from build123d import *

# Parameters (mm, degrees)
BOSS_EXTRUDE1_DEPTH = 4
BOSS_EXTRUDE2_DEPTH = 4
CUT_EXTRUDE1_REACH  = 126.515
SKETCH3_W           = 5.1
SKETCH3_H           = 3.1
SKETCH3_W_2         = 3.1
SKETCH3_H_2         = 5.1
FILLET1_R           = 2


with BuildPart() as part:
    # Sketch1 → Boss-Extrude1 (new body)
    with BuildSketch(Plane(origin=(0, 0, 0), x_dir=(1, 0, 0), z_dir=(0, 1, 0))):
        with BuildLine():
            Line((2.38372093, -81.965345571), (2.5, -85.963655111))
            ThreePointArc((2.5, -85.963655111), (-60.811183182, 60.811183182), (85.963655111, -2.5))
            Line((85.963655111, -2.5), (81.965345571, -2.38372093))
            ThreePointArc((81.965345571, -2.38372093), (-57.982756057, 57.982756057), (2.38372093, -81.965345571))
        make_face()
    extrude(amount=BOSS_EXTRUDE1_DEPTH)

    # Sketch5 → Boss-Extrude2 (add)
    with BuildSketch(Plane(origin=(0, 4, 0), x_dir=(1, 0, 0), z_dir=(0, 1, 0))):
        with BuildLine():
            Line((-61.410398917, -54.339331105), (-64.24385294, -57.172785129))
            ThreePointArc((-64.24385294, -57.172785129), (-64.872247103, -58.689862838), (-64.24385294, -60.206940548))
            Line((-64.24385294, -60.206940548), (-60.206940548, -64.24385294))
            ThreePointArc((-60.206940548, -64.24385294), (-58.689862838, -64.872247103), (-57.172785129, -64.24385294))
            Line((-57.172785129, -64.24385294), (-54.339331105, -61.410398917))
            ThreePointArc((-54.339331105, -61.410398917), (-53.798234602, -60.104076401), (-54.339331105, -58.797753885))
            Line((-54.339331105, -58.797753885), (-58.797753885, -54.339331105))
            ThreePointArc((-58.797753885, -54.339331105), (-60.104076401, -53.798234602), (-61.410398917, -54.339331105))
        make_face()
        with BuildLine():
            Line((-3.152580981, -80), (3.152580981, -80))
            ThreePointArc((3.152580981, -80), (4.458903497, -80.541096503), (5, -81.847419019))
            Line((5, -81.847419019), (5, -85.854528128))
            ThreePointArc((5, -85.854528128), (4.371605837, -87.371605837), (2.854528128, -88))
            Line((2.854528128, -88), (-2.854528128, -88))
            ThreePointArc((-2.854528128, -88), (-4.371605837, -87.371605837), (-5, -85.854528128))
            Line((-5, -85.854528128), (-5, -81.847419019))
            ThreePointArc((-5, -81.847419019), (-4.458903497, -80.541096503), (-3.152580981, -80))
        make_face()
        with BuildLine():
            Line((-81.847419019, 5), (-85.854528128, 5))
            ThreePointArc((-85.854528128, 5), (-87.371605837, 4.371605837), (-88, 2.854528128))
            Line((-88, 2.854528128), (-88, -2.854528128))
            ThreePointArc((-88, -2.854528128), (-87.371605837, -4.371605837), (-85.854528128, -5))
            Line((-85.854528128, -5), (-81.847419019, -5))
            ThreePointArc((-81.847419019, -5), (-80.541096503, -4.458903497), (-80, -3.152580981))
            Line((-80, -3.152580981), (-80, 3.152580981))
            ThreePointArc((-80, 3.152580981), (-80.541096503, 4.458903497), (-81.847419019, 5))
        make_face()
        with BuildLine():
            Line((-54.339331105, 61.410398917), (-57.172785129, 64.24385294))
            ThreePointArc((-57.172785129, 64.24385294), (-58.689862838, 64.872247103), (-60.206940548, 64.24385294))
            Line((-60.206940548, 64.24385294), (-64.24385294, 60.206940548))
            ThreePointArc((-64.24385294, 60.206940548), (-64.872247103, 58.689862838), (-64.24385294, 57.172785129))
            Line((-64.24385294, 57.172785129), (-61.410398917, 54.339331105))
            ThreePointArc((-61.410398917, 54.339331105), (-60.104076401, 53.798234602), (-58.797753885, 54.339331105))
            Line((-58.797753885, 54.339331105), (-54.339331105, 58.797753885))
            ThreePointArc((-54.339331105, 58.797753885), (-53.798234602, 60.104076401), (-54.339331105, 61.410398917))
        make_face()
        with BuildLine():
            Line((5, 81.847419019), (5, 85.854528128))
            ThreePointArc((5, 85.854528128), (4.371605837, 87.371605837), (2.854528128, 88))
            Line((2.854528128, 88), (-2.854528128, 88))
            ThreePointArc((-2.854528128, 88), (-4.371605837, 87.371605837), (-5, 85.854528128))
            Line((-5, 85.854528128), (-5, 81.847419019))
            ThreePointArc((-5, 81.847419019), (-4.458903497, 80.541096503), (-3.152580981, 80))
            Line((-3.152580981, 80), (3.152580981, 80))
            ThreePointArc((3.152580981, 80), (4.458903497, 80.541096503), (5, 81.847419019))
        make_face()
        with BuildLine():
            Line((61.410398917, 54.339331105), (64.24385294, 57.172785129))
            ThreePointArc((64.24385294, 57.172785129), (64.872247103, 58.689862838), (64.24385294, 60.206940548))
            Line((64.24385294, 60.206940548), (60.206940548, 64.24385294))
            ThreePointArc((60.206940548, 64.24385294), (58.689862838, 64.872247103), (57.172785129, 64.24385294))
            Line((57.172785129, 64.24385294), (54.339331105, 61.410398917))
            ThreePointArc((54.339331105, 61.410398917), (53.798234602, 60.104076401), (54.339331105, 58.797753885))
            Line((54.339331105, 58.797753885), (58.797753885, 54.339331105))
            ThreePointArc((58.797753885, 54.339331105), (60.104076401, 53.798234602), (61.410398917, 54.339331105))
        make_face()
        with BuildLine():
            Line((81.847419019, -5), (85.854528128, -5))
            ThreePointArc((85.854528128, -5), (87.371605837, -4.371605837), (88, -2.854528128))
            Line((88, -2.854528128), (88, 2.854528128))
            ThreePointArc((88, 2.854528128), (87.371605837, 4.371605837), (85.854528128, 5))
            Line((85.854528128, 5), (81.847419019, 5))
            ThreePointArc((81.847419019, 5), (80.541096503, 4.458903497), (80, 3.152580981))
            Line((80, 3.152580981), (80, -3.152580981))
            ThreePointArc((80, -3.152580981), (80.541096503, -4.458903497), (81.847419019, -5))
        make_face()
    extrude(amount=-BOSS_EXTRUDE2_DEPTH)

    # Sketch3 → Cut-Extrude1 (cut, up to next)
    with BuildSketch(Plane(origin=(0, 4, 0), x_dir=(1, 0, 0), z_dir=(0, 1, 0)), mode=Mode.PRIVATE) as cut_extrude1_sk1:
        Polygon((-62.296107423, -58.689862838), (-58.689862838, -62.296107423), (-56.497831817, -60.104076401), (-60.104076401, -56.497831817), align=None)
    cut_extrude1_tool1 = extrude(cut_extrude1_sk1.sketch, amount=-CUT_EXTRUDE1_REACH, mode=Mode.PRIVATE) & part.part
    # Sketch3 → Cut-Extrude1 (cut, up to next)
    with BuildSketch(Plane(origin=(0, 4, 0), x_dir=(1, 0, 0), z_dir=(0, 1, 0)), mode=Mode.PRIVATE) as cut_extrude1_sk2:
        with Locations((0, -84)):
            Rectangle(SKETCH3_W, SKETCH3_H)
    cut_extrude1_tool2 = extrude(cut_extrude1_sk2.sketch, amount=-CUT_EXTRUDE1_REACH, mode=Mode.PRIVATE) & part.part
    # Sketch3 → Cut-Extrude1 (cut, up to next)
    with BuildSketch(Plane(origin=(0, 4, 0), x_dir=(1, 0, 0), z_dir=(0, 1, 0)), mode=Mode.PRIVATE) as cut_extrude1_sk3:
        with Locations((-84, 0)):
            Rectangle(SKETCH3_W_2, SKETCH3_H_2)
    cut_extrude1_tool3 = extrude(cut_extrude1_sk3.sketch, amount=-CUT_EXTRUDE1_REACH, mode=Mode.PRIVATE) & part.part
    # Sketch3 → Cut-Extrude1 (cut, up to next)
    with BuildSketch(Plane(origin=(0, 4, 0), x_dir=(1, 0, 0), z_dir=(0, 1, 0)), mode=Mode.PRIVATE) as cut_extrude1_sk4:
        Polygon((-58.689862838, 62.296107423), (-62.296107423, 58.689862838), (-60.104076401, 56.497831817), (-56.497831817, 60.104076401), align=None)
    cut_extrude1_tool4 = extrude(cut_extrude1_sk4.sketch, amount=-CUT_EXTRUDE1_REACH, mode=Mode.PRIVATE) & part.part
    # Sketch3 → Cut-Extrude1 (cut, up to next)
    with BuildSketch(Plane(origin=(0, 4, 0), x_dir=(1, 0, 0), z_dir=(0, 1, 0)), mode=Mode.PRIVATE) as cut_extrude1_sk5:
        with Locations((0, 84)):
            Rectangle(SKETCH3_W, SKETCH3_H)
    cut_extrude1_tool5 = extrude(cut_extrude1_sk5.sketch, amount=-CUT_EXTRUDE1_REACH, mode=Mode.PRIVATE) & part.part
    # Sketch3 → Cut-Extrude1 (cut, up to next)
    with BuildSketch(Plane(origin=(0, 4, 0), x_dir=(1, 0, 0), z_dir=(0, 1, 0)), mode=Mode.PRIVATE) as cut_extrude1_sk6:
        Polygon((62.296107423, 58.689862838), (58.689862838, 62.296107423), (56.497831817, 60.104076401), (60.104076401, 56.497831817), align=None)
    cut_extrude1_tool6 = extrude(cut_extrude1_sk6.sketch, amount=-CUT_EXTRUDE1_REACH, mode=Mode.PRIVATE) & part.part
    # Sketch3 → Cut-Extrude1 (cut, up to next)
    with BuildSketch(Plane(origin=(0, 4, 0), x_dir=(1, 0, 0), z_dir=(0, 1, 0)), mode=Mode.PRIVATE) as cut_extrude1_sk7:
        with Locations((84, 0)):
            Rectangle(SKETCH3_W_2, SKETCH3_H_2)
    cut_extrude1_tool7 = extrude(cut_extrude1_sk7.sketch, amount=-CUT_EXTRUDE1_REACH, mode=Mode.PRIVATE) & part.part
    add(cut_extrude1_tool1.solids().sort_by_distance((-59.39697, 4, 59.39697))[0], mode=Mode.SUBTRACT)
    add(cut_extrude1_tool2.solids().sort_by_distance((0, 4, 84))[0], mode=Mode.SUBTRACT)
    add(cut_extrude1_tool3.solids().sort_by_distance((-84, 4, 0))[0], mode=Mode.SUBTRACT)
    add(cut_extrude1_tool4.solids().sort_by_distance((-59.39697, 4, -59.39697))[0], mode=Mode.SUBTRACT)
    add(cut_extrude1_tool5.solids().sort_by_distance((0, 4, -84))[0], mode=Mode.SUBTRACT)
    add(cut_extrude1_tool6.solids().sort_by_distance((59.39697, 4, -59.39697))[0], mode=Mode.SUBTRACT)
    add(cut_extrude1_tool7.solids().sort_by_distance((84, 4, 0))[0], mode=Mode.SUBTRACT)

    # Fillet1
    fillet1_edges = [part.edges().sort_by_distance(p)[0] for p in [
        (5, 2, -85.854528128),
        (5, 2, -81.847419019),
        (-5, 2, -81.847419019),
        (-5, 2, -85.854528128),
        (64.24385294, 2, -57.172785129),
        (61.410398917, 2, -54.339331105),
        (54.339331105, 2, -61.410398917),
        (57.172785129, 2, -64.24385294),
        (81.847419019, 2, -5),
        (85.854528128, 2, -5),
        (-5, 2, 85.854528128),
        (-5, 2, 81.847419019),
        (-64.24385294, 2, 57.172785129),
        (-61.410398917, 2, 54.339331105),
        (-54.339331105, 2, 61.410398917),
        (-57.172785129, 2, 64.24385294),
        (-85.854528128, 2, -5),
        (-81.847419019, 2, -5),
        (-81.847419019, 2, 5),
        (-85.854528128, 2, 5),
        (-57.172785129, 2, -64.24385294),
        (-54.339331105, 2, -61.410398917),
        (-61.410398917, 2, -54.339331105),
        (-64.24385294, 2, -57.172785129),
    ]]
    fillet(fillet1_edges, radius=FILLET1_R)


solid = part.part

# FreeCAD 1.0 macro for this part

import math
import FreeCAD as App
import Part
import Sketcher

V = App.Vector
Q = App.Units.Quantity


def edges_at(feature, points):
    """Names of the edges that pass closest to the given points."""
    edges = feature.Shape.Edges
    near = lambda p: min(range(len(edges)), key=lambda i: edges[i].distToShape(Part.Vertex(*p))[0])
    return sorted({f"Edge{near(p) + 1}" for p in points})


def add_polygon(sketch, points):
    """Adds a closed chain of lines whose ends are joined by coincident constraints."""
    first, n = sketch.GeometryCount, len(points)
    for a, b in zip(points, points[1:] + points[:1]):
        sketch.addGeometry(Part.LineSegment(App.Vector(*a, 0), App.Vector(*b, 0)), False)
    for i in range(n):
        sketch.addConstraint(Sketcher.Constraint("Coincident", first + i, 2, first + (i + 1) % n, 1))

doc = App.newDocument("Part")
params = doc.addObject("Spreadsheet::Sheet", "Params")
for row, (alias, value) in enumerate([
    ("sketch1_radius", "82 mm"),
    ("sketch1_radius2", "86 mm"),
    ("pad1_length", "4 mm"),
    ("pad2_length", "4 mm"),
    ("sketch3_length", "5.1 mm"),
    ("sketch3_length2", "3.1 mm"),
    ("sketch4_width", "5.1 mm"),
    ("sketch4_height", "3.1 mm"),
    ("sketch5_width", "3.1 mm"),
    ("sketch5_height", "5.1 mm"),
    ("sketch6_length", "5.1 mm"),
    ("sketch6_length2", "3.1 mm"),
    ("sketch7_width", "5.1 mm"),
    ("sketch7_height", "3.1 mm"),
    ("sketch8_length", "5.1 mm"),
    ("sketch8_length2", "3.1 mm"),
    ("sketch9_width", "3.1 mm"),
    ("sketch9_height", "5.1 mm"),
    ("fillet_radius", "2 mm"),
], start=1):
    params.set(f"A{row}", alias)
    params.set(f"B{row}", "=" + value)
    params.setAlias(f"B{row}", alias)

body = doc.addObject("PartDesign::Body", "Body")

# Sketch on XZ plane
sketch1 = doc.addObject("Sketcher::SketchObject", "Sketch")
body.addObject(sketch1)
sketch1.AttachmentSupport = (doc.XZ_Plane, [""])
sketch1.MapMode = "FlatFace"
sketch1.addGeometry(Part.LineSegment(V(2.5, 86, 0), V(2.4, 82, 0)), False)
sketch1.addGeometry(Part.ArcOfCircle(Part.Circle(V(0, 0, 0), V(0, 0, 1), 82), math.radians(88), math.radians(362)), False)
sketch1.addGeometry(Part.LineSegment(V(82, 2.4, 0), V(86, 2.5, 0)), False)
sketch1.addGeometry(Part.ArcOfCircle(Part.Circle(V(0, 0, 0), V(0, 0, 1), 86), math.radians(88), math.radians(362)), False)
sketch1.addConstraint(Sketcher.Constraint("Coincident", 0, 2, 1, 1))
sketch1.addConstraint(Sketcher.Constraint("Coincident", 1, 2, 2, 1))
sketch1.addConstraint(Sketcher.Constraint("Coincident", 2, 2, 3, 2))
sketch1.addConstraint(Sketcher.Constraint("Coincident", 3, 1, 0, 1))
sketch1.addConstraint(Sketcher.Constraint("Coincident", 1, 3, -1, 1))
sketch1.addConstraint(Sketcher.Constraint("Coincident", 3, 3, -1, 1))
sketch1.addConstraint(Sketcher.Constraint("Radius", 1, Q("82 mm")))
sketch1.addConstraint(Sketcher.Constraint("Radius", 3, Q("86 mm")))
sketch1.addConstraint(Sketcher.Constraint("DistanceY", -1, 1, 2, 2, Q("2.5 mm")))
sketch1.addConstraint(Sketcher.Constraint("DistanceX", -1, 1, 3, 1, Q("2.5 mm")))
sketch1.addConstraint(Sketcher.Constraint("DistanceX", -1, 1, 0, 2, Q("2.383721 mm")))
sketch1.addConstraint(Sketcher.Constraint("DistanceY", -1, 1, 1, 2, Q("2.383721 mm")))
sketch1.setExpression("Constraints[6]", "Params.sketch1_radius")
sketch1.setExpression("Constraints[7]", "Params.sketch1_radius2")
pad1 = doc.addObject("PartDesign::Pad", "Pad")
body.addObject(pad1)
pad1.Profile = sketch1
pad1.setExpression("Length", "Params.pad1_length")
pad1.Reversed = True

# Sketch on XZ plane
sketch2 = doc.addObject("Sketcher::SketchObject", "Sketch001")
body.addObject(sketch2)
sketch2.AttachmentSupport = (doc.XZ_Plane, [""])
sketch2.MapMode = "FlatFace"
sketch2.AttachmentOffset = App.Placement(V(0, 0, -4), App.Rotation())
sketch2.addGeometry(Part.LineSegment(V(-61.4, 54.3, 0), V(-64.2, 57.2, 0)), False)
sketch2.addGeometry(Part.ArcOfCircle(Part.Circle(V(-62.7, 58.7, 0), V(0, 0, 1), 2.1), math.radians(135), math.radians(225)), False)
sketch2.addGeometry(Part.LineSegment(V(-64.2, 60.2, 0), V(-60.2, 64.2, 0)), False)
sketch2.addGeometry(Part.ArcOfCircle(Part.Circle(V(-58.7, 62.7, 0), V(0, 0, 1), 2.1), math.radians(45), math.radians(135)), False)
sketch2.addGeometry(Part.LineSegment(V(-57.2, 64.2, 0), V(-54.3, 61.4, 0)), False)
sketch2.addGeometry(Part.ArcOfCircle(Part.Circle(V(-55.6, 60.1, 0), V(0, 0, 1), 1.8), math.radians(-45), math.radians(45)), False)
sketch2.addGeometry(Part.LineSegment(V(-54.3, 58.8, 0), V(-58.8, 54.3, 0)), False)
sketch2.addGeometry(Part.ArcOfCircle(Part.Circle(V(-60.1, 55.6, 0), V(0, 0, 1), 1.8), math.radians(-135), math.radians(-45)), False)
sketch2.addGeometry(Part.LineSegment(V(3.2, 80, 0), V(-3.2, 80, 0)), False)
sketch2.addGeometry(Part.ArcOfCircle(Part.Circle(V(-3.2, 81.8, 0), V(0, 0, 1), 1.8), math.radians(180), math.radians(270)), False)
sketch2.addGeometry(Part.LineSegment(V(-5, 81.8, 0), V(-5, 85.9, 0)), False)
sketch2.addGeometry(Part.ArcOfCircle(Part.Circle(V(-2.9, 85.9, 0), V(0, 0, 1), 2.1), math.radians(90), math.radians(180)), False)
sketch2.addGeometry(Part.LineSegment(V(-2.9, 88, 0), V(2.9, 88, 0)), False)
sketch2.addGeometry(Part.ArcOfCircle(Part.Circle(V(2.9, 85.9, 0), V(0, 0, 1), 2.1), math.radians(0), math.radians(90)), False)
sketch2.addGeometry(Part.LineSegment(V(5, 85.9, 0), V(5, 81.8, 0)), False)
sketch2.addGeometry(Part.ArcOfCircle(Part.Circle(V(3.2, 81.8, 0), V(0, 0, 1), 1.8), math.radians(-90), math.radians(0)), False)
sketch2.addGeometry(Part.LineSegment(V(-81.8, -5, 0), V(-85.9, -5, 0)), False)
sketch2.addGeometry(Part.ArcOfCircle(Part.Circle(V(-85.9, -2.9, 0), V(0, 0, 1), 2.1), math.radians(-180), math.radians(-90)), False)
sketch2.addGeometry(Part.LineSegment(V(-88, -2.9, 0), V(-88, 2.9, 0)), False)
sketch2.addGeometry(Part.ArcOfCircle(Part.Circle(V(-85.9, 2.9, 0), V(0, 0, 1), 2.1), math.radians(90), math.radians(180)), False)
sketch2.addGeometry(Part.LineSegment(V(-85.9, 5, 0), V(-81.8, 5, 0)), False)
sketch2.addGeometry(Part.ArcOfCircle(Part.Circle(V(-81.8, 3.2, 0), V(0, 0, 1), 1.8), math.radians(0), math.radians(90)), False)
sketch2.addGeometry(Part.LineSegment(V(-80, 3.2, 0), V(-80, -3.2, 0)), False)
sketch2.addGeometry(Part.ArcOfCircle(Part.Circle(V(-81.8, -3.2, 0), V(0, 0, 1), 1.8), math.radians(-90), math.radians(0)), False)
sketch2.addGeometry(Part.LineSegment(V(-54.3, -61.4, 0), V(-57.2, -64.2, 0)), False)
sketch2.addGeometry(Part.ArcOfCircle(Part.Circle(V(-58.7, -62.7, 0), V(0, 0, 1), 2.1), math.radians(-135), math.radians(-45)), False)
sketch2.addGeometry(Part.LineSegment(V(-60.2, -64.2, 0), V(-64.2, -60.2, 0)), False)
sketch2.addGeometry(Part.ArcOfCircle(Part.Circle(V(-62.7, -58.7, 0), V(0, 0, 1), 2.1), math.radians(135), math.radians(225)), False)
sketch2.addGeometry(Part.LineSegment(V(-64.2, -57.2, 0), V(-61.4, -54.3, 0)), False)
sketch2.addGeometry(Part.ArcOfCircle(Part.Circle(V(-60.1, -55.6, 0), V(0, 0, 1), 1.8), math.radians(45), math.radians(135)), False)
sketch2.addGeometry(Part.LineSegment(V(-58.8, -54.3, 0), V(-54.3, -58.8, 0)), False)
sketch2.addGeometry(Part.ArcOfCircle(Part.Circle(V(-55.6, -60.1, 0), V(0, 0, 1), 1.8), math.radians(-45), math.radians(45)), False)
sketch2.addGeometry(Part.LineSegment(V(5, -81.8, 0), V(5, -85.9, 0)), False)
sketch2.addGeometry(Part.ArcOfCircle(Part.Circle(V(2.9, -85.9, 0), V(0, 0, 1), 2.1), math.radians(-90), math.radians(0)), False)
sketch2.addGeometry(Part.LineSegment(V(2.9, -88, 0), V(-2.9, -88, 0)), False)
sketch2.addGeometry(Part.ArcOfCircle(Part.Circle(V(-2.9, -85.9, 0), V(0, 0, 1), 2.1), math.radians(-180), math.radians(-90)), False)
sketch2.addGeometry(Part.LineSegment(V(-5, -85.9, 0), V(-5, -81.8, 0)), False)
sketch2.addGeometry(Part.ArcOfCircle(Part.Circle(V(-3.2, -81.8, 0), V(0, 0, 1), 1.8), math.radians(90), math.radians(180)), False)
sketch2.addGeometry(Part.LineSegment(V(-3.2, -80, 0), V(3.2, -80, 0)), False)
sketch2.addGeometry(Part.ArcOfCircle(Part.Circle(V(3.2, -81.8, 0), V(0, 0, 1), 1.8), math.radians(0), math.radians(90)), False)
sketch2.addGeometry(Part.LineSegment(V(61.4, -54.3, 0), V(64.2, -57.2, 0)), False)
sketch2.addGeometry(Part.ArcOfCircle(Part.Circle(V(62.7, -58.7, 0), V(0, 0, 1), 2.1), math.radians(-45), math.radians(45)), False)
sketch2.addGeometry(Part.LineSegment(V(64.2, -60.2, 0), V(60.2, -64.2, 0)), False)
sketch2.addGeometry(Part.ArcOfCircle(Part.Circle(V(58.7, -62.7, 0), V(0, 0, 1), 2.1), math.radians(-135), math.radians(-45)), False)
sketch2.addGeometry(Part.LineSegment(V(57.2, -64.2, 0), V(54.3, -61.4, 0)), False)
sketch2.addGeometry(Part.ArcOfCircle(Part.Circle(V(55.6, -60.1, 0), V(0, 0, 1), 1.8), math.radians(135), math.radians(225)), False)
sketch2.addGeometry(Part.LineSegment(V(54.3, -58.8, 0), V(58.8, -54.3, 0)), False)
sketch2.addGeometry(Part.ArcOfCircle(Part.Circle(V(60.1, -55.6, 0), V(0, 0, 1), 1.8), math.radians(45), math.radians(135)), False)
sketch2.addGeometry(Part.LineSegment(V(81.8, 5, 0), V(85.9, 5, 0)), False)
sketch2.addGeometry(Part.ArcOfCircle(Part.Circle(V(85.9, 2.9, 0), V(0, 0, 1), 2.1), math.radians(0), math.radians(90)), False)
sketch2.addGeometry(Part.LineSegment(V(88, 2.9, 0), V(88, -2.9, 0)), False)
sketch2.addGeometry(Part.ArcOfCircle(Part.Circle(V(85.9, -2.9, 0), V(0, 0, 1), 2.1), math.radians(-90), math.radians(0)), False)
sketch2.addGeometry(Part.LineSegment(V(85.9, -5, 0), V(81.8, -5, 0)), False)
sketch2.addGeometry(Part.ArcOfCircle(Part.Circle(V(81.8, -3.2, 0), V(0, 0, 1), 1.8), math.radians(180), math.radians(270)), False)
sketch2.addGeometry(Part.LineSegment(V(80, -3.2, 0), V(80, 3.2, 0)), False)
sketch2.addGeometry(Part.ArcOfCircle(Part.Circle(V(81.8, 3.2, 0), V(0, 0, 1), 1.8), math.radians(90), math.radians(180)), False)
sketch2.addConstraint(Sketcher.Constraint("Tangent", 0, 2, 1, 2))
sketch2.addConstraint(Sketcher.Constraint("Tangent", 1, 1, 2, 1))
sketch2.addConstraint(Sketcher.Constraint("Tangent", 2, 2, 3, 2))
sketch2.addConstraint(Sketcher.Constraint("Tangent", 3, 1, 4, 1))
sketch2.addConstraint(Sketcher.Constraint("Tangent", 4, 2, 5, 2))
sketch2.addConstraint(Sketcher.Constraint("Tangent", 5, 1, 6, 1))
sketch2.addConstraint(Sketcher.Constraint("Tangent", 6, 2, 7, 2))
sketch2.addConstraint(Sketcher.Constraint("Tangent", 7, 1, 0, 1))
sketch2.addConstraint(Sketcher.Constraint("Tangent", 8, 2, 9, 2))
sketch2.addConstraint(Sketcher.Constraint("Tangent", 9, 1, 10, 1))
sketch2.addConstraint(Sketcher.Constraint("Tangent", 10, 2, 11, 2))
sketch2.addConstraint(Sketcher.Constraint("Tangent", 11, 1, 12, 1))
sketch2.addConstraint(Sketcher.Constraint("Tangent", 12, 2, 13, 2))
sketch2.addConstraint(Sketcher.Constraint("Tangent", 13, 1, 14, 1))
sketch2.addConstraint(Sketcher.Constraint("Tangent", 14, 2, 15, 2))
sketch2.addConstraint(Sketcher.Constraint("Tangent", 15, 1, 8, 1))
sketch2.addConstraint(Sketcher.Constraint("Tangent", 16, 2, 17, 2))
sketch2.addConstraint(Sketcher.Constraint("Tangent", 17, 1, 18, 1))
sketch2.addConstraint(Sketcher.Constraint("Tangent", 18, 2, 19, 2))
sketch2.addConstraint(Sketcher.Constraint("Tangent", 19, 1, 20, 1))
sketch2.addConstraint(Sketcher.Constraint("Tangent", 20, 2, 21, 2))
sketch2.addConstraint(Sketcher.Constraint("Tangent", 21, 1, 22, 1))
sketch2.addConstraint(Sketcher.Constraint("Tangent", 22, 2, 23, 2))
sketch2.addConstraint(Sketcher.Constraint("Tangent", 23, 1, 16, 1))
sketch2.addConstraint(Sketcher.Constraint("Tangent", 24, 2, 25, 2))
sketch2.addConstraint(Sketcher.Constraint("Tangent", 25, 1, 26, 1))
sketch2.addConstraint(Sketcher.Constraint("Tangent", 26, 2, 27, 2))
sketch2.addConstraint(Sketcher.Constraint("Tangent", 27, 1, 28, 1))
sketch2.addConstraint(Sketcher.Constraint("Tangent", 28, 2, 29, 2))
sketch2.addConstraint(Sketcher.Constraint("Tangent", 29, 1, 30, 1))
sketch2.addConstraint(Sketcher.Constraint("Tangent", 30, 2, 31, 2))
sketch2.addConstraint(Sketcher.Constraint("Tangent", 31, 1, 24, 1))
sketch2.addConstraint(Sketcher.Constraint("Tangent", 32, 2, 33, 2))
sketch2.addConstraint(Sketcher.Constraint("Tangent", 33, 1, 34, 1))
sketch2.addConstraint(Sketcher.Constraint("Tangent", 34, 2, 35, 2))
sketch2.addConstraint(Sketcher.Constraint("Tangent", 35, 1, 36, 1))
sketch2.addConstraint(Sketcher.Constraint("Tangent", 36, 2, 37, 2))
sketch2.addConstraint(Sketcher.Constraint("Tangent", 37, 1, 38, 1))
sketch2.addConstraint(Sketcher.Constraint("Tangent", 38, 2, 39, 2))
sketch2.addConstraint(Sketcher.Constraint("Tangent", 39, 1, 32, 1))
sketch2.addConstraint(Sketcher.Constraint("Tangent", 40, 2, 41, 2))
sketch2.addConstraint(Sketcher.Constraint("Tangent", 41, 1, 42, 1))
sketch2.addConstraint(Sketcher.Constraint("Tangent", 42, 2, 43, 2))
sketch2.addConstraint(Sketcher.Constraint("Tangent", 43, 1, 44, 1))
sketch2.addConstraint(Sketcher.Constraint("Tangent", 44, 2, 45, 2))
sketch2.addConstraint(Sketcher.Constraint("Tangent", 45, 1, 46, 1))
sketch2.addConstraint(Sketcher.Constraint("Tangent", 46, 2, 47, 2))
sketch2.addConstraint(Sketcher.Constraint("Tangent", 47, 1, 40, 1))
sketch2.addConstraint(Sketcher.Constraint("Tangent", 48, 2, 49, 2))
sketch2.addConstraint(Sketcher.Constraint("Tangent", 49, 1, 50, 1))
sketch2.addConstraint(Sketcher.Constraint("Tangent", 50, 2, 51, 2))
sketch2.addConstraint(Sketcher.Constraint("Tangent", 51, 1, 52, 1))
sketch2.addConstraint(Sketcher.Constraint("Tangent", 52, 2, 53, 2))
sketch2.addConstraint(Sketcher.Constraint("Tangent", 53, 1, 54, 1))
sketch2.addConstraint(Sketcher.Constraint("Tangent", 54, 2, 55, 2))
sketch2.addConstraint(Sketcher.Constraint("Tangent", 55, 1, 48, 1))
sketch2.addConstraint(Sketcher.Constraint("Horizontal", 8))
sketch2.addConstraint(Sketcher.Constraint("Vertical", 10))
sketch2.addConstraint(Sketcher.Constraint("Horizontal", 12))
sketch2.addConstraint(Sketcher.Constraint("Vertical", 14))
sketch2.addConstraint(Sketcher.Constraint("Horizontal", 16))
sketch2.addConstraint(Sketcher.Constraint("Vertical", 18))
sketch2.addConstraint(Sketcher.Constraint("Horizontal", 20))
sketch2.addConstraint(Sketcher.Constraint("Vertical", 22))
sketch2.addConstraint(Sketcher.Constraint("Vertical", 32))
sketch2.addConstraint(Sketcher.Constraint("Horizontal", 34))
sketch2.addConstraint(Sketcher.Constraint("Vertical", 36))
sketch2.addConstraint(Sketcher.Constraint("Horizontal", 38))
sketch2.addConstraint(Sketcher.Constraint("Horizontal", 48))
sketch2.addConstraint(Sketcher.Constraint("Vertical", 50))
sketch2.addConstraint(Sketcher.Constraint("Horizontal", 52))
sketch2.addConstraint(Sketcher.Constraint("Vertical", 54))
sketch2.addConstraint(Sketcher.Constraint("Equal", 1, 3))
sketch2.addConstraint(Sketcher.Constraint("Equal", 5, 7))
sketch2.addConstraint(Sketcher.Constraint("Equal", 7, 9))
sketch2.addConstraint(Sketcher.Constraint("Equal", 3, 11))
sketch2.addConstraint(Sketcher.Constraint("Equal", 11, 13))
sketch2.addConstraint(Sketcher.Constraint("Equal", 9, 15))
sketch2.addConstraint(Sketcher.Constraint("Equal", 13, 17))
sketch2.addConstraint(Sketcher.Constraint("Equal", 17, 19))
sketch2.addConstraint(Sketcher.Constraint("Equal", 15, 21))
sketch2.addConstraint(Sketcher.Constraint("Equal", 21, 23))
sketch2.addConstraint(Sketcher.Constraint("Equal", 19, 25))
sketch2.addConstraint(Sketcher.Constraint("Equal", 25, 27))
sketch2.addConstraint(Sketcher.Constraint("Equal", 23, 29))
sketch2.addConstraint(Sketcher.Constraint("Equal", 29, 31))
sketch2.addConstraint(Sketcher.Constraint("Equal", 27, 33))
sketch2.addConstraint(Sketcher.Constraint("Equal", 33, 35))
sketch2.addConstraint(Sketcher.Constraint("Equal", 31, 37))
sketch2.addConstraint(Sketcher.Constraint("Equal", 37, 39))
sketch2.addConstraint(Sketcher.Constraint("Equal", 35, 41))
sketch2.addConstraint(Sketcher.Constraint("Equal", 41, 43))
sketch2.addConstraint(Sketcher.Constraint("Equal", 39, 45))
sketch2.addConstraint(Sketcher.Constraint("Equal", 45, 47))
sketch2.addConstraint(Sketcher.Constraint("Equal", 43, 49))
sketch2.addConstraint(Sketcher.Constraint("Equal", 49, 51))
sketch2.addConstraint(Sketcher.Constraint("Equal", 47, 53))
sketch2.addConstraint(Sketcher.Constraint("Equal", 53, 55))
sketch2.addConstraint(Sketcher.Constraint("Symmetric", 11, 3, 33, 3, -1, 1))
sketch2.addConstraint(Sketcher.Constraint("Symmetric", 15, 3, 37, 3, -1, 1))
sketch2.addConstraint(Sketcher.Constraint("Symmetric", 1, 3, 41, 3, -1, 1))
sketch2.addConstraint(Sketcher.Constraint("Symmetric", 3, 3, 43, 3, -1, 1))
sketch2.addConstraint(Sketcher.Constraint("Symmetric", 5, 3, 45, 3, -1, 1))
sketch2.addConstraint(Sketcher.Constraint("Symmetric", 7, 3, 47, 3, -1, 1))
sketch2.addConstraint(Sketcher.Constraint("Symmetric", 17, 3, 49, 3, -1, 1))
sketch2.addConstraint(Sketcher.Constraint("Symmetric", 21, 3, 53, 3, -1, 1))
sketch2.addConstraint(Sketcher.Constraint("Symmetric", 27, 3, 41, 3, -2))
sketch2.addConstraint(Sketcher.Constraint("Symmetric", 25, 3, 43, 3, -2))
sketch2.addConstraint(Sketcher.Constraint("Symmetric", 31, 3, 45, 3, -2))
sketch2.addConstraint(Sketcher.Constraint("Symmetric", 29, 3, 47, 3, -2))
sketch2.addConstraint(Sketcher.Constraint("Perpendicular", 0, 2))
sketch2.addConstraint(Sketcher.Constraint("Perpendicular", 2, 4))
sketch2.addConstraint(Sketcher.Constraint("Perpendicular", 4, 6))
sketch2.addConstraint(Sketcher.Constraint("Parallel", 6, 24))
sketch2.addConstraint(Sketcher.Constraint("Horizontal", 19, 3, 49, 3))
sketch2.addConstraint(Sketcher.Constraint("Vertical", 13, 3, 33, 3))
sketch2.addConstraint(Sketcher.Constraint("Equal", 52, 10))
sketch2.addConstraint(Sketcher.Constraint("Equal", 34, 18))
sketch2.addConstraint(Sketcher.Constraint("DistanceY", -1, 1, 8, 2, Q("80 mm")))
sketch2.addConstraint(Sketcher.Constraint("DistanceX", 9, 1, -1, 1, Q("5 mm")))
sketch2.addConstraint(Sketcher.Constraint("DistanceY", -1, 1, 11, 1, Q("88 mm")))
sketch2.addConstraint(Sketcher.Constraint("DistanceX", 17, 1, -1, 1, Q("88 mm")))
sketch2.addConstraint(Sketcher.Constraint("Radius", 1, Q("2.145472 mm")))
sketch2.addConstraint(Sketcher.Constraint("Radius", 5, Q("1.847419 mm")))
sketch2.addConstraint(Sketcher.Constraint("DistanceY", -1, 1, 4, 2, Q("61.410399 mm")))
sketch2.addConstraint(Sketcher.Constraint("DistanceX", 7, 1, -1, 1, Q("61.410399 mm")))
sketch2.addConstraint(Sketcher.Constraint("Distance", 0, Q("4.007109 mm")))
sketch2.addConstraint(Sketcher.Constraint("Distance", 6, Q("6.305162 mm")))
pad2 = doc.addObject("PartDesign::Pad", "Pad001")
body.addObject(pad2)
pad2.Profile = sketch2
pad2.setExpression("Length", "Params.pad2_length")

# Sketch on XZ plane
sketch3 = doc.addObject("Sketcher::SketchObject", "Sketch002")
body.addObject(sketch3)
sketch3.AttachmentSupport = (doc.XZ_Plane, [""])
sketch3.MapMode = "FlatFace"
sketch3.AttachmentOffset = App.Placement(V(0, 0, -4), App.Rotation())
add_polygon(sketch3, [(-62.3, 58.7), (-58.7, 62.3), (-56.5, 60.1), (-60.1, 56.5)])  # lines 0-3
sketch3.addConstraint(Sketcher.Constraint("Perpendicular", 0, 1))
sketch3.addConstraint(Sketcher.Constraint("Perpendicular", 1, 2))
sketch3.addConstraint(Sketcher.Constraint("Perpendicular", 2, 3))
sketch3.addConstraint(Sketcher.Constraint("Angle", 0, Q("45 deg")))
sketch3.addConstraint(Sketcher.Constraint("Distance", 0, Q("5.1 mm")))
sketch3.addConstraint(Sketcher.Constraint("Distance", 1, Q("3.1 mm")))
sketch3.addConstraint(Sketcher.Constraint("DistanceX", 1, 2, -1, 1, Q("56.497832 mm")))
sketch3.addConstraint(Sketcher.Constraint("DistanceY", -1, 1, 2, 2, Q("56.497832 mm")))
sketch3.setExpression("Constraints[8]", "Params.sketch3_length")
sketch3.setExpression("Constraints[9]", "Params.sketch3_length2")
pocket1 = doc.addObject("PartDesign::Pocket", "Pocket")
body.addObject(pocket1)
pocket1.Profile = sketch3
pocket1.Type = "UpToFirst"
pocket1.Reversed = True

# Sketch on XZ plane
sketch4 = doc.addObject("Sketcher::SketchObject", "Sketch003")
body.addObject(sketch4)
sketch4.AttachmentSupport = (doc.XZ_Plane, [""])
sketch4.MapMode = "FlatFace"
sketch4.AttachmentOffset = App.Placement(V(0, 0, -4), App.Rotation())
add_polygon(sketch4, [(-2.5, 82.5), (-2.5, 85.5), (2.5, 85.5), (2.5, 82.5)])  # lines 0-3
sketch4.addConstraint(Sketcher.Constraint("Vertical", 0))
sketch4.addConstraint(Sketcher.Constraint("Horizontal", 1))
sketch4.addConstraint(Sketcher.Constraint("Vertical", 2))
sketch4.addConstraint(Sketcher.Constraint("Horizontal", 3))
sketch4.addConstraint(Sketcher.Constraint("DistanceX", 1, 1, 1, 2, Q("5.1 mm")))
sketch4.addConstraint(Sketcher.Constraint("DistanceY", 0, 1, 0, 2, Q("3.1 mm")))
sketch4.addConstraint(Sketcher.Constraint("DistanceX", 0, 2, -1, 1, Q("2.55 mm")))
sketch4.addConstraint(Sketcher.Constraint("DistanceY", -1, 1, 0, 2, Q("85.55 mm")))
sketch4.setExpression("Constraints[8]", "Params.sketch4_width")
sketch4.setExpression("Constraints[9]", "Params.sketch4_height")
pocket2 = doc.addObject("PartDesign::Pocket", "Pocket001")
body.addObject(pocket2)
pocket2.Profile = sketch4
pocket2.Type = "UpToFirst"
pocket2.Reversed = True

# Sketch on XZ plane
sketch5 = doc.addObject("Sketcher::SketchObject", "Sketch004")
body.addObject(sketch5)
sketch5.AttachmentSupport = (doc.XZ_Plane, [""])
sketch5.MapMode = "FlatFace"
sketch5.AttachmentOffset = App.Placement(V(0, 0, -4), App.Rotation())
add_polygon(sketch5, [(-85.5, -2.5), (-85.5, 2.5), (-82.5, 2.5), (-82.5, -2.5)])  # lines 0-3
sketch5.addConstraint(Sketcher.Constraint("Vertical", 0))
sketch5.addConstraint(Sketcher.Constraint("Horizontal", 1))
sketch5.addConstraint(Sketcher.Constraint("Vertical", 2))
sketch5.addConstraint(Sketcher.Constraint("Horizontal", 3))
sketch5.addConstraint(Sketcher.Constraint("DistanceX", 1, 1, 1, 2, Q("3.1 mm")))
sketch5.addConstraint(Sketcher.Constraint("DistanceY", 0, 1, 0, 2, Q("5.1 mm")))
sketch5.addConstraint(Sketcher.Constraint("DistanceX", 0, 2, -1, 1, Q("85.55 mm")))
sketch5.addConstraint(Sketcher.Constraint("DistanceY", -1, 1, 0, 2, Q("2.55 mm")))
sketch5.setExpression("Constraints[8]", "Params.sketch5_width")
sketch5.setExpression("Constraints[9]", "Params.sketch5_height")
pocket3 = doc.addObject("PartDesign::Pocket", "Pocket002")
body.addObject(pocket3)
pocket3.Profile = sketch5
pocket3.Type = "UpToFirst"
pocket3.Reversed = True

# Sketch on XZ plane
sketch6 = doc.addObject("Sketcher::SketchObject", "Sketch005")
body.addObject(sketch6)
sketch6.AttachmentSupport = (doc.XZ_Plane, [""])
sketch6.MapMode = "FlatFace"
sketch6.AttachmentOffset = App.Placement(V(0, 0, -4), App.Rotation())
add_polygon(sketch6, [(-58.7, -62.3), (-62.3, -58.7), (-60.1, -56.5), (-56.5, -60.1)])  # lines 0-3
sketch6.addConstraint(Sketcher.Constraint("Perpendicular", 0, 1))
sketch6.addConstraint(Sketcher.Constraint("Perpendicular", 1, 2))
sketch6.addConstraint(Sketcher.Constraint("Perpendicular", 2, 3))
sketch6.addConstraint(Sketcher.Constraint("Angle", 0, Q("135 deg")))
sketch6.addConstraint(Sketcher.Constraint("Distance", 0, Q("5.1 mm")))
sketch6.addConstraint(Sketcher.Constraint("Distance", 1, Q("3.1 mm")))
sketch6.addConstraint(Sketcher.Constraint("DistanceY", 1, 2, -1, 1, Q("56.497832 mm")))
sketch6.addConstraint(Sketcher.Constraint("DistanceX", 2, 2, -1, 1, Q("56.497832 mm")))
sketch6.setExpression("Constraints[8]", "Params.sketch6_length")
sketch6.setExpression("Constraints[9]", "Params.sketch6_length2")
pocket4 = doc.addObject("PartDesign::Pocket", "Pocket003")
body.addObject(pocket4)
pocket4.Profile = sketch6
pocket4.Type = "UpToFirst"
pocket4.Reversed = True

# Sketch on XZ plane
sketch7 = doc.addObject("Sketcher::SketchObject", "Sketch006")
body.addObject(sketch7)
sketch7.AttachmentSupport = (doc.XZ_Plane, [""])
sketch7.MapMode = "FlatFace"
sketch7.AttachmentOffset = App.Placement(V(0, 0, -4), App.Rotation())
add_polygon(sketch7, [(-2.5, -85.5), (-2.5, -82.5), (2.5, -82.5), (2.5, -85.5)])  # lines 0-3
sketch7.addConstraint(Sketcher.Constraint("Vertical", 0))
sketch7.addConstraint(Sketcher.Constraint("Horizontal", 1))
sketch7.addConstraint(Sketcher.Constraint("Vertical", 2))
sketch7.addConstraint(Sketcher.Constraint("Horizontal", 3))
sketch7.addConstraint(Sketcher.Constraint("DistanceX", 1, 1, 1, 2, Q("5.1 mm")))
sketch7.addConstraint(Sketcher.Constraint("DistanceY", 0, 1, 0, 2, Q("3.1 mm")))
sketch7.addConstraint(Sketcher.Constraint("DistanceX", 0, 2, -1, 1, Q("2.55 mm")))
sketch7.addConstraint(Sketcher.Constraint("DistanceY", 0, 2, -1, 1, Q("82.45 mm")))
sketch7.setExpression("Constraints[8]", "Params.sketch7_width")
sketch7.setExpression("Constraints[9]", "Params.sketch7_height")
pocket5 = doc.addObject("PartDesign::Pocket", "Pocket004")
body.addObject(pocket5)
pocket5.Profile = sketch7
pocket5.Type = "UpToFirst"
pocket5.Reversed = True

# Sketch on XZ plane
sketch8 = doc.addObject("Sketcher::SketchObject", "Sketch007")
body.addObject(sketch8)
sketch8.AttachmentSupport = (doc.XZ_Plane, [""])
sketch8.MapMode = "FlatFace"
sketch8.AttachmentOffset = App.Placement(V(0, 0, -4), App.Rotation())
add_polygon(sketch8, [(62.3, -58.7), (58.7, -62.3), (56.5, -60.1), (60.1, -56.5)])  # lines 0-3
sketch8.addConstraint(Sketcher.Constraint("Perpendicular", 0, 1))
sketch8.addConstraint(Sketcher.Constraint("Perpendicular", 1, 2))
sketch8.addConstraint(Sketcher.Constraint("Perpendicular", 2, 3))
sketch8.addConstraint(Sketcher.Constraint("Angle", 0, Q("-135 deg")))
sketch8.addConstraint(Sketcher.Constraint("Distance", 0, Q("5.1 mm")))
sketch8.addConstraint(Sketcher.Constraint("Distance", 1, Q("3.1 mm")))
sketch8.addConstraint(Sketcher.Constraint("DistanceX", -1, 1, 1, 2, Q("56.497832 mm")))
sketch8.addConstraint(Sketcher.Constraint("DistanceY", 2, 2, -1, 1, Q("56.497832 mm")))
sketch8.setExpression("Constraints[8]", "Params.sketch8_length")
sketch8.setExpression("Constraints[9]", "Params.sketch8_length2")
pocket6 = doc.addObject("PartDesign::Pocket", "Pocket005")
body.addObject(pocket6)
pocket6.Profile = sketch8
pocket6.Type = "UpToFirst"
pocket6.Reversed = True

# Sketch on XZ plane
sketch9 = doc.addObject("Sketcher::SketchObject", "Sketch008")
body.addObject(sketch9)
sketch9.AttachmentSupport = (doc.XZ_Plane, [""])
sketch9.MapMode = "FlatFace"
sketch9.AttachmentOffset = App.Placement(V(0, 0, -4), App.Rotation())
add_polygon(sketch9, [(82.5, -2.5), (82.5, 2.5), (85.5, 2.5), (85.5, -2.5)])  # lines 0-3
sketch9.addConstraint(Sketcher.Constraint("Vertical", 0))
sketch9.addConstraint(Sketcher.Constraint("Horizontal", 1))
sketch9.addConstraint(Sketcher.Constraint("Vertical", 2))
sketch9.addConstraint(Sketcher.Constraint("Horizontal", 3))
sketch9.addConstraint(Sketcher.Constraint("DistanceX", 1, 1, 1, 2, Q("3.1 mm")))
sketch9.addConstraint(Sketcher.Constraint("DistanceY", 0, 1, 0, 2, Q("5.1 mm")))
sketch9.addConstraint(Sketcher.Constraint("DistanceX", -1, 1, 0, 2, Q("82.45 mm")))
sketch9.addConstraint(Sketcher.Constraint("DistanceY", -1, 1, 0, 2, Q("2.55 mm")))
sketch9.setExpression("Constraints[8]", "Params.sketch9_width")
sketch9.setExpression("Constraints[9]", "Params.sketch9_height")
pocket7 = doc.addObject("PartDesign::Pocket", "Pocket006")
body.addObject(pocket7)
pocket7.Profile = sketch9
pocket7.Type = "UpToFirst"
pocket7.Reversed = True
doc.recompute()

fillet = doc.addObject("PartDesign::Fillet", "Fillet")
body.addObject(fillet)
fillet.Base = (pocket7, edges_at(pocket7, [
    (5, 2, -85.855),
    (5, 2, -81.847),
    (-5, 2, -81.847),
    (-5, 2, -85.855),
    (64.244, 2, -57.173),
    (61.41, 2, -54.339),
    (54.339, 2, -61.41),
    (57.173, 2, -64.244),
    (81.847, 2, -5),
    (85.855, 2, -5),
    (-5, 2, 85.855),
    (-5, 2, 81.847),
    (-64.244, 2, 57.173),
    (-61.41, 2, 54.339),
    (-54.339, 2, 61.41),
    (-57.173, 2, 64.244),
    (-85.855, 2, -5),
    (-81.847, 2, -5),
    (-81.847, 2, 5),
    (-85.855, 2, 5),
    (-57.173, 2, -64.244),
    (-54.339, 2, -61.41),
    (-61.41, 2, -54.339),
    (-64.244, 2, -57.173),
]))
fillet.setExpression("Radius", "Params.fillet_radius")

doc.recompute()
